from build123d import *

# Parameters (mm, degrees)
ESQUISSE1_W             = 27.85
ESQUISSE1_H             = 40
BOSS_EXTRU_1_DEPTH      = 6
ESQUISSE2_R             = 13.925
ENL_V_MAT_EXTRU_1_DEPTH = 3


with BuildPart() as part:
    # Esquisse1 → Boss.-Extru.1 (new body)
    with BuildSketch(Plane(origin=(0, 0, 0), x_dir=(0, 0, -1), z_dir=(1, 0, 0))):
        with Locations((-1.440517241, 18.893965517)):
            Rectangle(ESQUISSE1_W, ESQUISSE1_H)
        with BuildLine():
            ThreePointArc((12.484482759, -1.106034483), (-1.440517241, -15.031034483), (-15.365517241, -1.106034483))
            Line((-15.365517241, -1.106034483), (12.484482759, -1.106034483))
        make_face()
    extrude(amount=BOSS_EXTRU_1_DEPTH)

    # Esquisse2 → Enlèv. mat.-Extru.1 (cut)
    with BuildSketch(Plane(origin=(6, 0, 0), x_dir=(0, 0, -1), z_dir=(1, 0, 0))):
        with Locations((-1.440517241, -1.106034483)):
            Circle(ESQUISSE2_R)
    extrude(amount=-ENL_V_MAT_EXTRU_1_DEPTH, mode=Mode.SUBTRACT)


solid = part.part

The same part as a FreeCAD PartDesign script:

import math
import FreeCAD as App
import Part
import Sketcher

V = App.Vector

doc = App.newDocument("Part")
body = doc.addObject("PartDesign::Body", "Body")

# Sketch on YZ plane
sketch1 = body.newObject("Sketcher::SketchObject", "Sketch")
sketch1.AttachmentSupport = (doc.getObject("YZ_Plane"), [""])
sketch1.MapMode = "FlatFace"
sketch1.addGeometry(Part.LineSegment(V(38.893966, 15.365517, 0), V(-1.106034, 15.365517, 0)), False)
sketch1.addGeometry(Part.ArcOfCircle(Part.Circle(V(-1.106034, 1.440517, 0), V(0, 0, 1), 13.925), math.radians(90), math.radians(270)), False)
sketch1.addGeometry(Part.LineSegment(V(-1.106034, -12.484483, 0), V(38.893966, -12.484483, 0)), False)
sketch1.addGeometry(Part.LineSegment(V(38.893966, -12.484483, 0), V(38.893966, 15.365517, 0)), False)
sketch1.addConstraint(Sketcher.Constraint("Tangent", 0, 2, 1, 1))
sketch1.addConstraint(Sketcher.Constraint("Tangent", 1, 2, 2, 1))
sketch1.addConstraint(Sketcher.Constraint("Coincident", 2, 2, 3, 1))
sketch1.addConstraint(Sketcher.Constraint("Coincident", 3, 2, 0, 1))
sketch1.addConstraint(Sketcher.Constraint("Horizontal", 0))
sketch1.addConstraint(Sketcher.Constraint("Horizontal", 2))
sketch1.addConstraint(Sketcher.Constraint("Vertical", 3))
sketch1.addConstraint(Sketcher.Constraint("DistanceX", 0, 2, 0, 1, 40.0))
sketch1.addConstraint(Sketcher.Constraint("Radius", 1, 13.925))
sketch1.addConstraint(Sketcher.Constraint("DistanceX", 1, 3, -1, 1, 1.106034))
sketch1.addConstraint(Sketcher.Constraint("DistanceY", -1, 1, 1, 3, 1.440517))
pad1 = body.newObject("PartDesign::Pad", "Pad")
pad1.Profile = sketch1
pad1.Length = 6

# Sketch on YZ plane
sketch2 = body.newObject("Sketcher::SketchObject", "Sketch001")
sketch2.AttachmentSupport = (doc.getObject("YZ_Plane"), [""])
sketch2.MapMode = "FlatFace"
sketch2.AttachmentOffset = App.Placement(V(0, 0, 6), App.Rotation())
sketch2.addGeometry(Part.Circle(V(-1.106034, 1.440517, 0), V(0, 0, 1), 13.925), False)
sketch2.addConstraint(Sketcher.Constraint("Diameter", 0, 27.85))
sketch2.addConstraint(Sketcher.Constraint("DistanceX", 0, 3, -1, 1, 1.106034))
sketch2.addConstraint(Sketcher.Constraint("DistanceY", -1, 1, 0, 3, 1.440517))
pocket1 = body.newObject("PartDesign::Pocket", "Pocket")
pocket1.Profile = sketch2
pocket1.Length = 3

doc.recompute()
